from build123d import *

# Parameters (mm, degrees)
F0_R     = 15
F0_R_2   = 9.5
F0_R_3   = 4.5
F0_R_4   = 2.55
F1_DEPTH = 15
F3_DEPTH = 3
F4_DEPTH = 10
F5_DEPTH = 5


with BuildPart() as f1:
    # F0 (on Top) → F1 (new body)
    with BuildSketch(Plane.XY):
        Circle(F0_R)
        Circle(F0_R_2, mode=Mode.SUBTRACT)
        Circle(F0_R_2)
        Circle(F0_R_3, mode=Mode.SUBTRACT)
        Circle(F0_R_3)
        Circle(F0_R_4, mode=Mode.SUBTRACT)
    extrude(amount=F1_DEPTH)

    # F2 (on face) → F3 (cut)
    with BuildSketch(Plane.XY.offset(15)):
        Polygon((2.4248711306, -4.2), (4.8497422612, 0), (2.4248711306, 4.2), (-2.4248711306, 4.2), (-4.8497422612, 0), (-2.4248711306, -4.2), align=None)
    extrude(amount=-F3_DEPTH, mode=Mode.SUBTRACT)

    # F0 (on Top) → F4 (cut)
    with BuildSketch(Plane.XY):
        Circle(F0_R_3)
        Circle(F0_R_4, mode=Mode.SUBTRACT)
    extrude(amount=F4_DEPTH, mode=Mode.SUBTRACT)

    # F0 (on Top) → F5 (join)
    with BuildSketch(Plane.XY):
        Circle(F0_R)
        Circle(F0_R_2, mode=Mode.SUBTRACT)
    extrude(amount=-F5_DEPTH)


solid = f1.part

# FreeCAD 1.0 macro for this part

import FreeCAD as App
import Part
import Sketcher
Q = App.Units.Quantity

doc = App.newDocument("Part")
body = doc.addObject("PartDesign::Body", "Body")

# Sketch on XY plane
sketch1 = body.newObject("Sketcher::SketchObject", "Sketch")
sketch1.AttachmentSupport = (doc.getObject("XY_Plane"), [""])
sketch1.MapMode = "FlatFace"
sketch1.addGeometry(Part.Circle(App.Vector(0, 0, 0), App.Vector(0, 0, 1), 15), False)
sketch1.addGeometry(Part.Circle(App.Vector(0, 0, 0), App.Vector(0, 0, 1), 2.55), False)
sketch1.addConstraint(Sketcher.Constraint("Coincident", 0, 3, -1, 1))
sketch1.addConstraint(Sketcher.Constraint("Coincident", 1, 3, -1, 1))
sketch1.addConstraint(Sketcher.Constraint("Diameter", 0, 30.0))
sketch1.addConstraint(Sketcher.Constraint("Diameter", 1, 5.1))
pad1 = body.newObject("PartDesign::Pad", "Pad")
pad1.Profile = sketch1
pad1.Length = 15

# Sketch on XY plane
sketch2 = body.newObject("Sketcher::SketchObject", "Sketch001")
sketch2.AttachmentSupport = (doc.getObject("XY_Plane"), [""])
sketch2.MapMode = "FlatFace"
sketch2.AttachmentOffset = App.Placement(App.Vector(0, 0, 15), App.Rotation())
sketch2.addGeometry(Part.LineSegment(App.Vector(2.424871, -4.2, 0), App.Vector(4.849742, 0, 0)), False)
sketch2.addGeometry(Part.LineSegment(App.Vector(4.849742, 0, 0), App.Vector(2.424871, 4.2, 0)), False)
sketch2.addGeometry(Part.LineSegment(App.Vector(2.424871, 4.2, 0), App.Vector(-2.424871, 4.2, 0)), False)
sketch2.addGeometry(Part.LineSegment(App.Vector(-2.424871, 4.2, 0), App.Vector(-4.849742, 0, 0)), False)
sketch2.addGeometry(Part.LineSegment(App.Vector(-4.849742, 0, 0), App.Vector(-2.424871, -4.2, 0)), False)
sketch2.addGeometry(Part.LineSegment(App.Vector(-2.424871, -4.2, 0), App.Vector(2.424871, -4.2, 0)), False)
sketch2.addConstraint(Sketcher.Constraint("Coincident", 0, 2, 1, 1))
sketch2.addConstraint(Sketcher.Constraint("Coincident", 1, 2, 2, 1))
sketch2.addConstraint(Sketcher.Constraint("Coincident", 2, 2, 3, 1))
sketch2.addConstraint(Sketcher.Constraint("Coincident", 3, 2, 4, 1))
sketch2.addConstraint(Sketcher.Constraint("Coincident", 4, 2, 5, 1))
sketch2.addConstraint(Sketcher.Constraint("Coincident", 5, 2, 0, 1))
sketch2.addConstraint(Sketcher.Constraint("Horizontal", 2))
sketch2.addConstraint(Sketcher.Constraint("Horizontal", 5))
sketch2.addConstraint(Sketcher.Constraint("Symmetric", 0, 2, 3, 2, -1, 1))
sketch2.addConstraint(Sketcher.Constraint("Symmetric", 1, 2, 4, 2, -1, 1))
sketch2.addConstraint(Sketcher.Constraint("PointOnObject", 0, 2, -1))
sketch2.addConstraint(Sketcher.Constraint("Parallel", 0, 3))
sketch2.addConstraint(Sketcher.Constraint("Vertical", 2, 2, 4, 2))
sketch2.addConstraint(Sketcher.Constraint("Angle", 0, Q("60 deg")))
sketch2.addConstraint(Sketcher.Constraint("DistanceY", -1, 1, 1, 2, 4.2))
sketch2.addConstraint(Sketcher.Constraint("DistanceX", 2, 2, 2, 1, 4.849742))
pocket1 = body.newObject("PartDesign::Pocket", "Pocket")
pocket1.Profile = sketch2
pocket1.Length = 3

# Sketch on XY plane
sketch3 = body.newObject("Sketcher::SketchObject", "Sketch002")
sketch3.AttachmentSupport = (doc.getObject("XY_Plane"), [""])
sketch3.MapMode = "FlatFace"
sketch3.addGeometry(Part.Circle(App.Vector(0, 0, 0), App.Vector(0, 0, 1), 4.5), False)
sketch3.addGeometry(Part.Circle(App.Vector(0, 0, 0), App.Vector(0, 0, 1), 2.55), False)
sketch3.addConstraint(Sketcher.Constraint("Coincident", 0, 3, -1, 1))
sketch3.addConstraint(Sketcher.Constraint("Coincident", 1, 3, -1, 1))
sketch3.addConstraint(Sketcher.Constraint("Diameter", 0, 9.0))
sketch3.addConstraint(Sketcher.Constraint("Diameter", 1, 5.1))
pocket2 = body.newObject("PartDesign::Pocket", "Pocket001")
pocket2.Profile = sketch3
pocket2.Length = 10
pocket2.Reversed = True

# Sketch on XY plane
sketch4 = body.newObject("Sketcher::SketchObject", "Sketch003")
sketch4.AttachmentSupport = (doc.getObject("XY_Plane"), [""])
sketch4.MapMode = "FlatFace"
sketch4.addGeometry(Part.Circle(App.Vector(0, 0, 0), App.Vector(0, 0, 1), 15), False)
sketch4.addGeometry(Part.Circle(App.Vector(0, 0, 0), App.Vector(0, 0, 1), 9.5), False)
sketch4.addConstraint(Sketcher.Constraint("Coincident", 0, 3, -1, 1))
sketch4.addConstraint(Sketcher.Constraint("Coincident", 1, 3, -1, 1))
sketch4.addConstraint(Sketcher.Constraint("Diameter", 0, 30.0))
sketch4.addConstraint(Sketcher.Constraint("Diameter", 1, 19.0))
pad2 = body.newObject("PartDesign::Pad", "Pad001")
pad2.Profile = sketch4
pad2.Length = 5
pad2.Reversed = True

doc.recompute()
